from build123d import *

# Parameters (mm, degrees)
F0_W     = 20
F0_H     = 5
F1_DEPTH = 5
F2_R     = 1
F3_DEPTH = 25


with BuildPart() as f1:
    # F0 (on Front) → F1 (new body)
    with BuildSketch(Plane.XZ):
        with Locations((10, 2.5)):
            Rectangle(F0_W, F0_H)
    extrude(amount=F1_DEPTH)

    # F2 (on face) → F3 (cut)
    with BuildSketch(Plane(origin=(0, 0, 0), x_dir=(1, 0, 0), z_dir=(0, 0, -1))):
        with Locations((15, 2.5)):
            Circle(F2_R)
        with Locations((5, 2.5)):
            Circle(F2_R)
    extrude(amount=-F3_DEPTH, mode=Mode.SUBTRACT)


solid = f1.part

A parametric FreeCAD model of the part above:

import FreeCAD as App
import Part
import Sketcher
Q = App.Units.Quantity

doc = App.newDocument("Part")
params = doc.addObject("Spreadsheet::Sheet", "Params")
for row, (alias, value) in enumerate([
    ("sketch1_width", "20 mm"),
    ("sketch1_height", "5 mm"),
    ("pad1_length", "5 mm"),
    ("sketch2_diameter", "2 mm"),
    ("pocket1_length", "25 mm"),
], start=1):
    params.set(f"A{row}", alias)
    params.set(f"B{row}", "=" + value)
    params.setAlias(f"B{row}", alias)

body = doc.addObject("PartDesign::Body", "Body")

# Sketch on XZ plane
sketch1 = body.newObject("Sketcher::SketchObject", "Sketch")
sketch1.AttachmentSupport = (doc.getObject("XZ_Plane"), [""])
sketch1.MapMode = "FlatFace"
sketch1.addGeometry(Part.LineSegment(App.Vector(0, 5, 0), App.Vector(0, 0, 0)), False)
sketch1.addGeometry(Part.LineSegment(App.Vector(0, 0, 0), App.Vector(20, 0, 0)), False)
sketch1.addGeometry(Part.LineSegment(App.Vector(20, 0, 0), App.Vector(20, 5, 0)), False)
sketch1.addGeometry(Part.LineSegment(App.Vector(20, 5, 0), App.Vector(0, 5, 0)), False)
sketch1.addConstraint(Sketcher.Constraint("Coincident", 0, 2, 1, 1))
sketch1.addConstraint(Sketcher.Constraint("Coincident", 1, 2, 2, 1))
sketch1.addConstraint(Sketcher.Constraint("Coincident", 2, 2, 3, 1))
sketch1.addConstraint(Sketcher.Constraint("Coincident", 3, 2, 0, 1))
sketch1.addConstraint(Sketcher.Constraint("Vertical", 0))
sketch1.addConstraint(Sketcher.Constraint("Horizontal", 1))
sketch1.addConstraint(Sketcher.Constraint("Vertical", 2))
sketch1.addConstraint(Sketcher.Constraint("Horizontal", 3))
sketch1.addConstraint(Sketcher.Constraint("Coincident", 0, 2, -1, 1))
sketch1.addConstraint(Sketcher.Constraint("DistanceX", 1, 1, 1, 2, Q("20 mm")))
sketch1.addConstraint(Sketcher.Constraint("DistanceY", 0, 2, 0, 1, Q("5 mm")))
sketch1.setExpression("Constraints[9]", "Params.sketch1_width")
sketch1.setExpression("Constraints[10]", "Params.sketch1_height")
pad1 = body.newObject("PartDesign::Pad", "Pad")
pad1.Profile = sketch1
pad1.setExpression("Length", "Params.pad1_length")

# Sketch on XY plane
sketch2 = body.newObject("Sketcher::SketchObject", "Sketch001")
sketch2.AttachmentSupport = (doc.getObject("XY_Plane"), [""])
sketch2.MapMode = "FlatFace"
sketch2.addGeometry(Part.Circle(App.Vector(15, -2.5, 0), App.Vector(0, 0, 1), 1), False)
sketch2.addGeometry(Part.Circle(App.Vector(5, -2.5, 0), App.Vector(0, 0, 1), 1), False)
sketch2.addConstraint(Sketcher.Constraint("Equal", 0, 1))
sketch2.addConstraint(Sketcher.Constraint("Horizontal", 0, 3, 1, 3))
sketch2.addConstraint(Sketcher.Constraint("Diameter", 0, Q("2 mm")))
sketch2.addConstraint(Sketcher.Constraint("DistanceX", -1, 1, 0, 3, Q("15 mm")))
sketch2.addConstraint(Sketcher.Constraint("DistanceX", -1, 1, 1, 3, Q("5 mm")))
sketch2.addConstraint(Sketcher.Constraint("DistanceY", 0, 3, -1, 1, Q("2.5 mm")))
sketch2.setExpression("Constraints[2]", "Params.sketch2_diameter")
pocket1 = body.newObject("PartDesign::Pocket", "Pocket")
pocket1.Profile = sketch2
pocket1.setExpression("Length", "Params.pocket1_length")
pocket1.Reversed = True

doc.recompute()
